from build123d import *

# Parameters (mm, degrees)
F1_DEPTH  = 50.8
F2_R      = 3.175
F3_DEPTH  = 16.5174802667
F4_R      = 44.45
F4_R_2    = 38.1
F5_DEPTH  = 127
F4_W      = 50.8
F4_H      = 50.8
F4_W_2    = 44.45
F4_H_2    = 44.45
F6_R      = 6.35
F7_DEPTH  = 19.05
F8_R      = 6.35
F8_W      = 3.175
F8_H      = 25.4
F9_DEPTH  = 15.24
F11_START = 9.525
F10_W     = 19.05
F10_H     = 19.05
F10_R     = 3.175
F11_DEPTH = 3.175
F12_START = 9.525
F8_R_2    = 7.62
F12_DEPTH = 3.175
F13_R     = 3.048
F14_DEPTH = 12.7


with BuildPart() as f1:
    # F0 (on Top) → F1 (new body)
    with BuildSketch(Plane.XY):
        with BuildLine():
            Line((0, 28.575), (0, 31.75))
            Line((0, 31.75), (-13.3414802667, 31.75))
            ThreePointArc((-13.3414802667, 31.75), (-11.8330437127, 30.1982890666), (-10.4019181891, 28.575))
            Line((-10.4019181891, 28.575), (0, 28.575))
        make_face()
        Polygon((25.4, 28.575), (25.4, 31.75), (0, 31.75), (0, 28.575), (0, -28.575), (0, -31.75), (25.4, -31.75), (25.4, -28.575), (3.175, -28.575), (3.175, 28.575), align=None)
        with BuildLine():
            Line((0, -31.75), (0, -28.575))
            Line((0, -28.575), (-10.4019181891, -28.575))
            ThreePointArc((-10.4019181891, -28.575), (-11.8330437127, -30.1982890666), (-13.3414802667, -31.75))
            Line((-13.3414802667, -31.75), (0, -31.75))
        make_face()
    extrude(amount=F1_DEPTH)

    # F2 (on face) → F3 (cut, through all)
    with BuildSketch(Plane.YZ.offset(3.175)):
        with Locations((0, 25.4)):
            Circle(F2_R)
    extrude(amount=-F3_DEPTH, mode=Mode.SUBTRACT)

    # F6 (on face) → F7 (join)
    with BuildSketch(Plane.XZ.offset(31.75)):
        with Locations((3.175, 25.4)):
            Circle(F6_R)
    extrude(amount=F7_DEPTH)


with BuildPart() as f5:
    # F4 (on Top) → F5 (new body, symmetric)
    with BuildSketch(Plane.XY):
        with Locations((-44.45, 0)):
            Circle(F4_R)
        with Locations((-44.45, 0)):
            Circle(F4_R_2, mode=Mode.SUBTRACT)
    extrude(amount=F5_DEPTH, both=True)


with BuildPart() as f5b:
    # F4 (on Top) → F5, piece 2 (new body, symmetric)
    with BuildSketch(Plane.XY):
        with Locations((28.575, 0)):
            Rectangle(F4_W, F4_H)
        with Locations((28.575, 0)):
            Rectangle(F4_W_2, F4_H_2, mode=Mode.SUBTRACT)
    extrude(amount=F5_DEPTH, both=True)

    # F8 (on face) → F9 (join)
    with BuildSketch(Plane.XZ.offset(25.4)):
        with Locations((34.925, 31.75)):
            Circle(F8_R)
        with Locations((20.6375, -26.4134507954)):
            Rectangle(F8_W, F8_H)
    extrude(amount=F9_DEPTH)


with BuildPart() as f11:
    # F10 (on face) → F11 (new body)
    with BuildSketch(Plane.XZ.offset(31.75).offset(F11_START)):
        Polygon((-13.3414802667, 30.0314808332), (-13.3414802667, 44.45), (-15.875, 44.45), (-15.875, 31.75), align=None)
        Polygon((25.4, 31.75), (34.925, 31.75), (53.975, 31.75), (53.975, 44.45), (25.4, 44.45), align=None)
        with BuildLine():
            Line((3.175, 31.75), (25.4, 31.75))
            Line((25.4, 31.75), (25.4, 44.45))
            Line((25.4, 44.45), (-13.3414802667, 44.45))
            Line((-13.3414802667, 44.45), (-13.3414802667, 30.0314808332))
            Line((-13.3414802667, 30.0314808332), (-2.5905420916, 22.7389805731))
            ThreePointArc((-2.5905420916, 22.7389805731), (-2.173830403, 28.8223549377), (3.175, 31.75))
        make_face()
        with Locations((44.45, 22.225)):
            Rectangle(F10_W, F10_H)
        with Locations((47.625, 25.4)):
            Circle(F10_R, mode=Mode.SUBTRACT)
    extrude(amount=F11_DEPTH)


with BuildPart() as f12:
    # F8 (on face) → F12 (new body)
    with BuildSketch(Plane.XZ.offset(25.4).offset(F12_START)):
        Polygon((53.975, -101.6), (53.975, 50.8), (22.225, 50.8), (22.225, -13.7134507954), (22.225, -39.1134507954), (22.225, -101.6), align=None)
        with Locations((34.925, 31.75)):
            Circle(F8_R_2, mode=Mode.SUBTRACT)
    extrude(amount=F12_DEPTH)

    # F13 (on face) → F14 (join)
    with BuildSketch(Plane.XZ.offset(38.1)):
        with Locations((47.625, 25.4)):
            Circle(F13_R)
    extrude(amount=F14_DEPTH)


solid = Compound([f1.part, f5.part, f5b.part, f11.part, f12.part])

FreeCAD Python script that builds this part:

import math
import FreeCAD as App
import Part
import Sketcher
Q = App.Units.Quantity


def add_polygon(sketch, points):
    """Adds a closed chain of lines whose ends are joined by coincident constraints."""
    first, n = sketch.GeometryCount, len(points)
    for a, b in zip(points, points[1:] + points[:1]):
        sketch.addGeometry(Part.LineSegment(App.Vector(*a, 0), App.Vector(*b, 0)), False)
    for i in range(n):
        sketch.addConstraint(Sketcher.Constraint("Coincident", first + i, 2, first + (i + 1) % n, 1))

doc = App.newDocument("Part")
params = doc.addObject("Spreadsheet::Sheet", "Params")
for row, (alias, value) in enumerate([
    ("sketch1_radius", "1.75 in"),
    ("sketch1_height", "2.25 in"),
    ("sketch1_width", "0.875 in"),
    ("sketch1_height2", "0.125 in"),
    ("pad1_length", "2 in"),
    ("sketch2_diameter", "0.25 in"),
    ("sketch3_diameter", "0.5 in"),
    ("pad2_length", "0.75 in"),
    ("sketch4_diameter", "3 in"),
    ("sketch4_diameter2", "3.5 in"),
    ("pad3_length", "10 in"),
    ("sketch5_width", "2 in"),
    ("sketch5_width2", "1.75 in"),
    ("pad4_length", "10 in"),
    ("sketch6_diameter", "0.5 in"),
    ("sketch6_height", "1 in"),
    ("sketch6_width", "0.125 in"),
    ("pad5_length", "0.6 in"),
    ("sketch7_diameter", "0.25 in"),
    ("sketch7_radius", "0.25 in"),
    ("sketch7_height", "0.5 in"),
    ("sketch7_width", "2.75 in"),
    ("pad6_length", "0.125 in"),
    ("sketch8_diameter", "0.6 in"),
    ("sketch8_height", "6 in"),
    ("sketch8_width", "1.25 in"),
    ("pad7_length", "0.125 in"),
    ("sketch9_diameter", "0.24 in"),
    ("pad8_length", "0.5 in"),
], start=1):
    params.set(f"A{row}", alias)
    params.set(f"B{row}", "=" + value)
    params.setAlias(f"B{row}", alias)

body = doc.addObject("PartDesign::Body", "Body")

# Sketch on XY plane
sketch1 = body.newObject("Sketcher::SketchObject", "Sketch")
sketch1.AttachmentSupport = (doc.getObject("XY_Plane"), [""])
sketch1.MapMode = "FlatFace"
sketch1.addGeometry([
    Part.ArcOfCircle(Part.Circle(App.Vector(-44.5, 0, 0), App.Vector(0, 0, 1), 44.5), math.radians(40.01), math.radians(45.58)),  # 0
    Part.LineSegment(App.Vector(-10.4, 28.6, 0), App.Vector(0, 28.6, 0)),  # 1
    Part.LineSegment(App.Vector(0, 28.6, 0), App.Vector(0, -28.6, 0)),  # 2
    Part.LineSegment(App.Vector(0, -28.6, 0), App.Vector(-10.4, -28.6, 0)),  # 3
    Part.ArcOfCircle(Part.Circle(App.Vector(-44.5, 0, 0), App.Vector(0, 0, 1), 44.5), math.radians(-45.58), math.radians(-40.01)),  # 4
    Part.LineSegment(App.Vector(-13.3, -31.8, 0), App.Vector(25.4, -31.8, 0)),  # 5
    Part.LineSegment(App.Vector(25.4, -31.8, 0), App.Vector(25.4, -28.6, 0)),  # 6
    Part.LineSegment(App.Vector(25.4, -28.6, 0), App.Vector(3.2, -28.6, 0)),  # 7
    Part.LineSegment(App.Vector(3.2, -28.6, 0), App.Vector(3.2, 28.6, 0)),  # 8
    Part.LineSegment(App.Vector(3.2, 28.6, 0), App.Vector(25.4, 28.6, 0)),  # 9
    Part.LineSegment(App.Vector(25.4, 28.6, 0), App.Vector(25.4, 31.8, 0)),  # 10
    Part.LineSegment(App.Vector(25.4, 31.8, 0), App.Vector(-13.3, 31.8, 0)),  # 11
], False)
sketch1.addConstraint([
    Sketcher.Constraint("Coincident", 0, 1, 1, 1),
    Sketcher.Constraint("Coincident", 1, 2, 2, 1),
    Sketcher.Constraint("Coincident", 2, 2, 3, 1),
    Sketcher.Constraint("Coincident", 3, 2, 4, 2),
    Sketcher.Constraint("Coincident", 4, 1, 5, 1),
    Sketcher.Constraint("Coincident", 5, 2, 6, 1),
    Sketcher.Constraint("Coincident", 6, 2, 7, 1),
    Sketcher.Constraint("Coincident", 7, 2, 8, 1),
    Sketcher.Constraint("Coincident", 8, 2, 9, 1),
    Sketcher.Constraint("Coincident", 9, 2, 10, 1),
    Sketcher.Constraint("Coincident", 10, 2, 11, 1),
    Sketcher.Constraint("Coincident", 11, 2, 0, 2),
    Sketcher.Constraint("Horizontal", 1),
    Sketcher.Constraint("Vertical", 2),
    Sketcher.Constraint("Horizontal", 3),
    Sketcher.Constraint("Horizontal", 5),
    Sketcher.Constraint("Vertical", 6),
    Sketcher.Constraint("Horizontal", 7),
    Sketcher.Constraint("Vertical", 8),
    Sketcher.Constraint("Horizontal", 9),
    Sketcher.Constraint("Vertical", 10),
    Sketcher.Constraint("Horizontal", 11),
    Sketcher.Constraint("Coincident", 4, 3, 0, 3),
    Sketcher.Constraint("Equal", 0, 4),
    Sketcher.Constraint("Symmetric", 1, 2, 2, 2, -1, 1),
    Sketcher.Constraint("Symmetric", 6, 2, 9, 2, -1),
    Sketcher.Constraint("Symmetric", 4, 1, 11, 2, -1),
    Sketcher.Constraint("Horizontal", 3, 2, 6, 2),
    Sketcher.Constraint("Radius", 0, Q("1.75 in")),
    Sketcher.Constraint("DistanceX", -1, 1, 5, 2, Q("1 in")),
    Sketcher.Constraint("DistanceY", 2, 2, 2, 1, Q("2.25 in")),
    Sketcher.Constraint("DistanceX", 7, 2, 7, 1, Q("0.875 in")),
    Sketcher.Constraint("DistanceY", 6, 1, 6, 2, Q("0.125 in")),
    Sketcher.Constraint("DistanceX", 0, 3, -1, 1, Q("1.75 in")),
])
sketch1.setExpression("Constraints[28]", "Params.sketch1_radius")
sketch1.setExpression("Constraints[30]", "Params.sketch1_height")
sketch1.setExpression("Constraints[31]", "Params.sketch1_width")
sketch1.setExpression("Constraints[32]", "Params.sketch1_height2")
pad1 = body.newObject("PartDesign::Pad", "Pad")
pad1.Profile = sketch1
pad1.setExpression("Length", "Params.pad1_length")

# Sketch on YZ plane
sketch2 = body.newObject("Sketcher::SketchObject", "Sketch001")
sketch2.AttachmentSupport = (doc.getObject("YZ_Plane"), [""])
sketch2.MapMode = "FlatFace"
sketch2.AttachmentOffset = App.Placement(App.Vector(0, 0, 0.125 * 25.4), App.Rotation())
sketch2.addGeometry(Part.Circle(App.Vector(0, 25.4, 0), App.Vector(0, 0, 1), 3.2), False)
sketch2.addConstraint([
    Sketcher.Constraint("PointOnObject", 0, 3, -2),
    Sketcher.Constraint("Diameter", 0, Q("0.25 in")),
    Sketcher.Constraint("DistanceY", -1, 1, 0, 3, Q("1 in")),
])
sketch2.setExpression("Constraints[1]", "Params.sketch2_diameter")
pocket1 = body.newObject("PartDesign::Pocket", "Pocket")
pocket1.Profile = sketch2
pocket1.Type = "ThroughAll"

# Sketch on XZ plane
sketch3 = body.newObject("Sketcher::SketchObject", "Sketch002")
sketch3.AttachmentSupport = (doc.getObject("XZ_Plane"), [""])
sketch3.MapMode = "FlatFace"
sketch3.AttachmentOffset = App.Placement(App.Vector(0, 0, 1.25 * 25.4), App.Rotation())
sketch3.addGeometry(Part.Circle(App.Vector(3, 25, 0), App.Vector(0, 0, 1), 6), False)
sketch3.addConstraint([
    Sketcher.Constraint("Diameter", 0, Q("0.5 in")),
    Sketcher.Constraint("DistanceY", -1, 1, 0, 3, Q("1 in")),
    Sketcher.Constraint("DistanceX", -1, 1, 0, 3, Q("0.125 in")),
])
sketch3.setExpression("Constraints[0]", "Params.sketch3_diameter")
pad2 = body.newObject("PartDesign::Pad", "Pad001")
pad2.Profile = sketch3
pad2.setExpression("Length", "Params.pad2_length")
body2 = doc.addObject("PartDesign::Body", "Body001")

# Sketch on XY plane
sketch4 = body2.newObject("Sketcher::SketchObject", "Sketch003")
sketch4.AttachmentSupport = (doc.getObject("XY_Plane001"), [""])
sketch4.MapMode = "FlatFace"
sketch4.addGeometry([
    Part.Circle(App.Vector(-44, 0, 0), App.Vector(0, 0, 1), 44),
    Part.Circle(App.Vector(-44, 0, 0), App.Vector(0, 0, 1), 38),
], False)
sketch4.addConstraint([
    Sketcher.Constraint("Coincident", 1, 3, 0, 3),
    Sketcher.Constraint("PointOnObject", 0, 3, -1),
    Sketcher.Constraint("Diameter", 1, Q("3 in")),
    Sketcher.Constraint("Diameter", 0, Q("3.5 in")),
    Sketcher.Constraint("DistanceX", 0, 3, -1, 1, Q("1.75 in")),
])
sketch4.setExpression("Constraints[2]", "Params.sketch4_diameter")
sketch4.setExpression("Constraints[3]", "Params.sketch4_diameter2")
pad3 = body2.newObject("PartDesign::Pad", "Pad002")
pad3.Profile = sketch4
pad3.setExpression("Length", "Params.pad3_length")
pad3.Midplane = True
body3 = doc.addObject("PartDesign::Body", "Body002")

# Sketch on XY plane
sketch5 = body3.newObject("Sketcher::SketchObject", "Sketch004")
sketch5.AttachmentSupport = (doc.getObject("XY_Plane002"), [""])
sketch5.MapMode = "FlatFace"
add_polygon(sketch5, [(3, 25), (3, -25), (54, -25), (54, 25)])  # lines 0-3
add_polygon(sketch5, [(51, -22), (6, -22), (6, 22), (51, 22)])  # lines 4-7
sketch5.addConstraint([
    Sketcher.Constraint("Vertical", 0),
    Sketcher.Constraint("Horizontal", 1),
    Sketcher.Constraint("Vertical", 2),
    Sketcher.Constraint("Horizontal", 3),
    Sketcher.Constraint("Horizontal", 4),
    Sketcher.Constraint("Vertical", 5),
    Sketcher.Constraint("Horizontal", 6),
    Sketcher.Constraint("Vertical", 7),
    Sketcher.Constraint("Equal", 3, 0),
    Sketcher.Constraint("Equal", 6, 5),
    Sketcher.Constraint("DistanceX", 1, 1, 1, 2, Q("2 in")),
    Sketcher.Constraint("DistanceY", 0, 2, -1, 1, Q("1 in")),
    Sketcher.Constraint("DistanceX", -1, 1, 6, 2, Q("2 in")),
    Sketcher.Constraint("DistanceX", 4, 2, 4, 1, Q("1.75 in")),
    Sketcher.Constraint("DistanceX", -1, 1, 0, 2, Q("0.125 in")),
    Sketcher.Constraint("DistanceY", 4, 2, -1, 1, Q("0.875 in")),
])
sketch5.setExpression("Constraints[18]", "Params.sketch5_width")
sketch5.setExpression("Constraints[21]", "Params.sketch5_width2")
pad4 = body3.newObject("PartDesign::Pad", "Pad003")
pad4.Profile = sketch5
pad4.setExpression("Length", "Params.pad4_length")
pad4.Midplane = True

# Sketch on XZ plane
sketch6 = body3.newObject("Sketcher::SketchObject", "Sketch005")
sketch6.AttachmentSupport = (doc.getObject("XZ_Plane002"), [""])
sketch6.MapMode = "FlatFace"
sketch6.AttachmentOffset = App.Placement(App.Vector(0, 0, 1 * 25.4), App.Rotation())
sketch6.addGeometry(Part.Circle(App.Vector(34.9, 31.8, 0), App.Vector(0, 0, 1), 6.3), False)  # 0
add_polygon(sketch6, [(19.1, -13.7), (19.1, -39.1), (22.2, -39.1), (22.2, -13.7)])  # lines 1-4
sketch6.addConstraint([
    Sketcher.Constraint("Vertical", 1),
    Sketcher.Constraint("Horizontal", 2),
    Sketcher.Constraint("Vertical", 3),
    Sketcher.Constraint("Horizontal", 4),
    Sketcher.Constraint("Diameter", 0, Q("0.5 in")),
    Sketcher.Constraint("DistanceY", 1, 2, 1, 1, Q("1 in")),
    Sketcher.Constraint("DistanceX", 2, 2, 0, 3, Q("0.5 in")),
    Sketcher.Constraint("DistanceX", 2, 1, 2, 2, Q("0.125 in")),
    Sketcher.Constraint("DistanceY", -1, 1, 0, 3, Q("1.25 in")),
    Sketcher.Constraint("DistanceX", -1, 1, 1, 2, Q("0.75 in")),
    Sketcher.Constraint("DistanceY", 1, 2, -1, 1, Q("39.113451 mm")),
])
sketch6.setExpression("Constraints[8]", "Params.sketch6_diameter")
sketch6.setExpression("Constraints[9]", "Params.sketch6_height")
sketch6.setExpression("Constraints[11]", "Params.sketch6_width")
pad5 = body3.newObject("PartDesign::Pad", "Pad004")
pad5.Profile = sketch6
pad5.setExpression("Length", "Params.pad5_length")
body4 = doc.addObject("PartDesign::Body", "Body003")

# Sketch on XZ plane
sketch7 = body4.newObject("Sketcher::SketchObject", "Sketch006")
sketch7.AttachmentSupport = (doc.getObject("XZ_Plane003"), [""])
sketch7.MapMode = "FlatFace"
sketch7.AttachmentOffset = App.Placement(App.Vector(0, 0, 1.625 * 25.4), App.Rotation())
sketch7.addGeometry([
    Part.LineSegment(App.Vector(-15.9, 44.5, 0), App.Vector(-15.9, 31.8, 0)),  # 0
    Part.LineSegment(App.Vector(-15.9, 31.8, 0), App.Vector(-13.3, 30, 0)),  # 1
    Part.LineSegment(App.Vector(-13.3, 30, 0), App.Vector(-2.6, 22.7, 0)),  # 2
    Part.ArcOfCircle(Part.Circle(App.Vector(3.2, 25.4, 0), App.Vector(0, 0, 1), 6.3), math.radians(90), math.radians(205)),  # 3
    Part.LineSegment(App.Vector(3.2, 31.8, 0), App.Vector(34.9, 31.8, 0)),  # 4
    Part.LineSegment(App.Vector(34.9, 31.8, 0), App.Vector(34.9, 12.7, 0)),  # 5
    Part.LineSegment(App.Vector(34.9, 12.7, 0), App.Vector(54, 12.7, 0)),  # 6
    Part.LineSegment(App.Vector(54, 12.7, 0), App.Vector(54, 44.5, 0)),  # 7
    Part.LineSegment(App.Vector(54, 44.5, 0), App.Vector(-15.9, 44.5, 0)),  # 8
    Part.Circle(App.Vector(47.6, 25.4, 0), App.Vector(0, 0, 1), 3.2),  # 9
], False)
sketch7.addConstraint([
    Sketcher.Constraint("Coincident", 0, 2, 1, 1),
    Sketcher.Constraint("Coincident", 1, 2, 2, 1),
    Sketcher.Constraint("Coincident", 2, 2, 3, 2),
    Sketcher.Constraint("Tangent", 3, 1, 4, 1),
    Sketcher.Constraint("Coincident", 4, 2, 5, 1),
    Sketcher.Constraint("Coincident", 5, 2, 6, 1),
    Sketcher.Constraint("Coincident", 6, 2, 7, 1),
    Sketcher.Constraint("Coincident", 7, 2, 8, 1),
    Sketcher.Constraint("Coincident", 8, 2, 0, 1),
    Sketcher.Constraint("Vertical", 0),
    Sketcher.Constraint("Horizontal", 4),
    Sketcher.Constraint("Vertical", 5),
    Sketcher.Constraint("Horizontal", 6),
    Sketcher.Constraint("Vertical", 7),
    Sketcher.Constraint("Horizontal", 8),
    Sketcher.Constraint("Parallel", 1, 2),
    Sketcher.Constraint("Horizontal", 3, 3, 9, 3),
    Sketcher.Constraint("Horizontal", 0, 2, 3, 1),
    Sketcher.Constraint("Equal", 6, 5),
    Sketcher.Constraint("Equal", 4, 7),
    Sketcher.Constraint("Diameter", 9, Q("0.25 in")),
    Sketcher.Constraint("Radius", 3, Q("0.25 in")),
    Sketcher.Constraint("DistanceY", 0, 2, 0, 1, Q("0.5 in")),
    Sketcher.Constraint("DistanceY", -1, 1, 3, 3, Q("1 in")),
    Sketcher.Constraint("DistanceX", 3, 3, 6, 2, Q("2 in")),
    Sketcher.Constraint("DistanceX", 8, 2, 8, 1, Q("2.75 in")),
    Sketcher.Constraint("DistanceX", 0, 2, 9, 3, Q("2.5 in")),
    Sketcher.Constraint("DistanceX", -1, 1, 3, 3, Q("0.125 in")),
    Sketcher.Constraint("DistanceY", 2, 2, 1, 2, Q("7.2925 mm")),
    Sketcher.Constraint("Distance", 2, Q("12.99089 mm")),
])
sketch7.setExpression("Constraints[20]", "Params.sketch7_diameter")
sketch7.setExpression("Constraints[21]", "Params.sketch7_radius")
sketch7.setExpression("Constraints[22]", "Params.sketch7_height")
sketch7.setExpression("Constraints[25]", "Params.sketch7_width")
pad6 = body4.newObject("PartDesign::Pad", "Pad005")
pad6.Profile = sketch7
pad6.setExpression("Length", "Params.pad6_length")
body5 = doc.addObject("PartDesign::Body", "Body004")

# Sketch on XZ plane
sketch8 = body5.newObject("Sketcher::SketchObject", "Sketch007")
sketch8.AttachmentSupport = (doc.getObject("XZ_Plane004"), [""])
sketch8.MapMode = "FlatFace"
sketch8.AttachmentOffset = App.Placement(App.Vector(0, 0, 1.375 * 25.4), App.Rotation())
add_polygon(sketch8, [(54, -102), (54, 51), (22, 51), (22, -102)])  # lines 0-3
sketch8.addGeometry(Part.Circle(App.Vector(35, 32, 0), App.Vector(0, 0, 1), 8), False)  # 4
sketch8.addConstraint([
    Sketcher.Constraint("Vertical", 0),
    Sketcher.Constraint("Horizontal", 1),
    Sketcher.Constraint("Vertical", 2),
    Sketcher.Constraint("Horizontal", 3),
    Sketcher.Constraint("Diameter", 4, Q("0.6 in")),
    Sketcher.Constraint("DistanceY", 0, 1, 0, 2, Q("6 in")),
    Sketcher.Constraint("DistanceY", -1, 1, 0, 2, Q("2 in")),
    Sketcher.Constraint("DistanceX", 1, 2, 1, 1, Q("1.25 in")),
    Sketcher.Constraint("DistanceX", 1, 2, 4, 3, Q("0.5 in")),
    Sketcher.Constraint("DistanceY", -1, 1, 4, 3, Q("1.25 in")),
    Sketcher.Constraint("DistanceX", -1, 1, 4, 3, Q("1.375 in")),
])
sketch8.setExpression("Constraints[8]", "Params.sketch8_diameter")
sketch8.setExpression("Constraints[9]", "Params.sketch8_height")
sketch8.setExpression("Constraints[11]", "Params.sketch8_width")
pad7 = body5.newObject("PartDesign::Pad", "Pad006")
pad7.Profile = sketch8
pad7.setExpression("Length", "Params.pad7_length")

# Sketch on XZ plane
sketch9 = body5.newObject("Sketcher::SketchObject", "Sketch008")
sketch9.AttachmentSupport = (doc.getObject("XZ_Plane004"), [""])
sketch9.MapMode = "FlatFace"
sketch9.AttachmentOffset = App.Placement(App.Vector(0, 0, 1.5 * 25.4), App.Rotation())
sketch9.addGeometry(Part.Circle(App.Vector(47.6, 25.4, 0), App.Vector(0, 0, 1), 3), False)
sketch9.addConstraint([
    Sketcher.Constraint("Diameter", 0, Q("0.24 in")),
    Sketcher.Constraint("DistanceY", -1, 1, 0, 3, Q("1 in")),
    Sketcher.Constraint("DistanceX", -1, 1, 0, 3, Q("1.875 in")),
])
sketch9.setExpression("Constraints[0]", "Params.sketch9_diameter")
pad8 = body5.newObject("PartDesign::Pad", "Pad007")
pad8.Profile = sketch9
pad8.setExpression("Length", "Params.pad8_length")

doc.recompute()
